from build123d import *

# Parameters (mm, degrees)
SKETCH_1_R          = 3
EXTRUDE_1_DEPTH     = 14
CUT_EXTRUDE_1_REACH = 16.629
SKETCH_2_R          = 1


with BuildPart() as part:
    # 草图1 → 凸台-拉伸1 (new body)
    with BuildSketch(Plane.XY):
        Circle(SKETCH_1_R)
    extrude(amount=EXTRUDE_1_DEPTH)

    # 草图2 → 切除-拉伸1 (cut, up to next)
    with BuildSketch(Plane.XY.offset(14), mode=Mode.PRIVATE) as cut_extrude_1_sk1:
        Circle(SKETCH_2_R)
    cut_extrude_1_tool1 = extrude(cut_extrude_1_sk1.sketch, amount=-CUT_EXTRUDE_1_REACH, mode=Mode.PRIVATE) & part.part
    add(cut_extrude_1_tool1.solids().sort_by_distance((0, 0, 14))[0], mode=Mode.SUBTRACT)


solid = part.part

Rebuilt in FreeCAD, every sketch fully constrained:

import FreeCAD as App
import Part
import Sketcher
from FreeCAD import Vector

doc = App.newDocument("Part")
body = doc.addObject("PartDesign::Body", "Body")

sketch1 = body.newObject("Sketcher::SketchObject", "Sketch")
sketch1.AttachmentSupport = (doc.getObject("XY_Plane"), [""])
sketch1.MapMode = "FlatFace"
sketch1.addGeometry(Part.Circle(Vector(0, 0, 0), Vector(0, 0, 1), 3), False)
sketch1.addConstraint([
    Sketcher.Constraint("Coincident", 0, 3, -1, 1),
    Sketcher.Constraint("Diameter", 0, 6.0),
])
pad1 = body.newObject("PartDesign::Pad", "Pad")
pad1.Profile = sketch1
pad1.Length = 14

sketch2 = body.newObject("Sketcher::SketchObject", "Sketch001")
sketch2.AttachmentSupport = (doc.getObject("XY_Plane"), [""])
sketch2.MapMode = "FlatFace"
sketch2.AttachmentOffset = App.Placement(Vector(0, 0, 14), App.Rotation())
sketch2.addGeometry(Part.Circle(Vector(0, 0, 0), Vector(0, 0, 1), 1), False)
sketch2.addConstraint([
    Sketcher.Constraint("Coincident", 0, 3, -1, 1),
    Sketcher.Constraint("Diameter", 0, 2.0),
])
pocket1 = body.newObject("PartDesign::Pocket", "Pocket")
pocket1.Profile = sketch2
pocket1.Type = "UpToFirst"

doc.recompute()
